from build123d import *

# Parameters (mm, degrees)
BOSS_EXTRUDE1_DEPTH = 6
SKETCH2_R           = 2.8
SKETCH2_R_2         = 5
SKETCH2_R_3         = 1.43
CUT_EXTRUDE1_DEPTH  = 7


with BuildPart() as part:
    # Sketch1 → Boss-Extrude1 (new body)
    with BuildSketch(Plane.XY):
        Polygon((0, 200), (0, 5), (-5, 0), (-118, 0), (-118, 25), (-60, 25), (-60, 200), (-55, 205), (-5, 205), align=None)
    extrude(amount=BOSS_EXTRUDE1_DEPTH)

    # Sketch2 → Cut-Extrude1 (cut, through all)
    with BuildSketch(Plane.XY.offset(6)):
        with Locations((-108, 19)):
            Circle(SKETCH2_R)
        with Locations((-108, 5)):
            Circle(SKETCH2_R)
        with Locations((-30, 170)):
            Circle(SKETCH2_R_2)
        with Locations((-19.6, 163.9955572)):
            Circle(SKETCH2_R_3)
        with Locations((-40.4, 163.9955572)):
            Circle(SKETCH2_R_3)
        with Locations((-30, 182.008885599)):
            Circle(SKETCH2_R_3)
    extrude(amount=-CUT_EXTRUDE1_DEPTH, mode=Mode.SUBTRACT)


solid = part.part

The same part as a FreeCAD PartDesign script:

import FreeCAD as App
import Part
import Sketcher

V = App.Vector
Q = App.Units.Quantity


def add_polygon(sketch, points):
    """Adds a closed chain of lines whose ends are joined by coincident constraints."""
    first, n = sketch.GeometryCount, len(points)
    for a, b in zip(points, points[1:] + points[:1]):
        sketch.addGeometry(Part.LineSegment(App.Vector(*a, 0), App.Vector(*b, 0)), False)
    for i in range(n):
        sketch.addConstraint(Sketcher.Constraint("Coincident", first + i, 2, first + (i + 1) % n, 1))

doc = App.newDocument("Part")
params = doc.addObject("Spreadsheet::Sheet", "Params")
for row, (alias, value) in enumerate([
    ("sketch1_width", "50 mm"),
    ("sketch1_width2", "58 mm"),
    ("sketch1_width3", "113 mm"),
    ("sketch1_height", "195 mm"),
    ("sketch1_height2", "175 mm"),
    ("pad1_length", "6 mm"),
    ("sketch2_diameter", "10 mm"),
    ("sketch2_diameter2", "5.6 mm"),
    ("sketch2_diameter3", "2.86 mm"),
], start=1):
    params.set(f"A{row}", alias)
    params.set(f"B{row}", "=" + value)
    params.setAlias(f"B{row}", alias)

body = doc.addObject("PartDesign::Body", "Body")

sketch1 = body.newObject("Sketcher::SketchObject", "Sketch")
sketch1.AttachmentSupport = (doc.getObject("XY_Plane"), [""])
sketch1.MapMode = "FlatFace"
add_polygon(sketch1, [(0, 5), (0, 200), (-5, 205), (-55, 205), (-60, 200), (-60, 25), (-118, 25), (-118, 0), (-5, 0)])
sketch1.addConstraint(Sketcher.Constraint("Vertical", 0))
sketch1.addConstraint(Sketcher.Constraint("Horizontal", 2))
sketch1.addConstraint(Sketcher.Constraint("Vertical", 4))
sketch1.addConstraint(Sketcher.Constraint("Horizontal", 5))
sketch1.addConstraint(Sketcher.Constraint("Vertical", 6))
sketch1.addConstraint(Sketcher.Constraint("Horizontal", 7))
sketch1.addConstraint(Sketcher.Constraint("PointOnObject", 0, 2, -2))
sketch1.addConstraint(Sketcher.Constraint("PointOnObject", 6, 2, -1))
sketch1.addConstraint(Sketcher.Constraint("Perpendicular", 1, 3))
sketch1.addConstraint(Sketcher.Constraint("Parallel", 3, 8))
sketch1.addConstraint(Sketcher.Constraint("Horizontal", 0, 2, 3, 2))
sketch1.addConstraint(Sketcher.Constraint("Vertical", 1, 2, 7, 2))
sketch1.addConstraint(Sketcher.Constraint("Equal", 1, 3))
sketch1.addConstraint(Sketcher.Constraint("DistanceX", 2, 2, 2, 1, Q("50 mm")))
sketch1.addConstraint(Sketcher.Constraint("DistanceX", 5, 2, 5, 1, Q("58 mm")))
sketch1.addConstraint(Sketcher.Constraint("DistanceX", 7, 1, 7, 2, Q("113 mm")))
sketch1.addConstraint(Sketcher.Constraint("DistanceY", 0, 1, 0, 2, Q("195 mm")))
sketch1.addConstraint(Sketcher.Constraint("DistanceY", 4, 2, 4, 1, Q("175 mm")))
sketch1.setExpression("Constraints[22]", "Params.sketch1_width")
sketch1.setExpression("Constraints[23]", "Params.sketch1_width2")
sketch1.setExpression("Constraints[24]", "Params.sketch1_width3")
sketch1.setExpression("Constraints[25]", "Params.sketch1_height")
sketch1.setExpression("Constraints[26]", "Params.sketch1_height2")
pad1 = body.newObject("PartDesign::Pad", "Pad")
pad1.Profile = sketch1
pad1.setExpression("Length", "Params.pad1_length")

sketch2 = body.newObject("Sketcher::SketchObject", "Sketch001")
sketch2.AttachmentSupport = (doc.getObject("XY_Plane"), [""])
sketch2.MapMode = "FlatFace"
sketch2.AttachmentOffset = App.Placement(V(0, 0, 6), App.Rotation())
sketch2.addGeometry(Part.Circle(V(-108, 19, 0), V(0, 0, 1), 2.8), False)
sketch2.addGeometry(Part.Circle(V(-108, 5, 0), V(0, 0, 1), 2.8), False)
sketch2.addGeometry(Part.Circle(V(-30, 170, 0), V(0, 0, 1), 5), False)
sketch2.addGeometry(Part.Circle(V(-19.6, 164, 0), V(0, 0, 1), 1.4), False)
sketch2.addGeometry(Part.Circle(V(-40.4, 164, 0), V(0, 0, 1), 1.4), False)
sketch2.addGeometry(Part.Circle(V(-30, 182, 0), V(0, 0, 1), 1.4), False)
sketch2.addConstraint(Sketcher.Constraint("Equal", 0, 1))
sketch2.addConstraint(Sketcher.Constraint("Equal", 3, 4))
sketch2.addConstraint(Sketcher.Constraint("Equal", 4, 5))
sketch2.addConstraint(Sketcher.Constraint("Horizontal", 3, 3, 4, 3))
sketch2.addConstraint(Sketcher.Constraint("Vertical", 0, 3, 1, 3))
sketch2.addConstraint(Sketcher.Constraint("Vertical", 2, 3, 5, 3))
sketch2.addConstraint(Sketcher.Constraint("Diameter", 2, Q("10 mm")))
sketch2.addConstraint(Sketcher.Constraint("Diameter", 0, Q("5.6 mm")))
sketch2.addConstraint(Sketcher.Constraint("Diameter", 3, Q("2.86 mm")))
sketch2.addConstraint(Sketcher.Constraint("DistanceX", 0, 3, -1, 1, Q("108 mm")))
sketch2.addConstraint(Sketcher.Constraint("DistanceY", -1, 1, 0, 3, Q("19 mm")))
sketch2.addConstraint(Sketcher.Constraint("DistanceY", -1, 1, 1, 3, Q("5 mm")))
sketch2.addConstraint(Sketcher.Constraint("DistanceX", 2, 3, -1, 1, Q("30 mm")))
sketch2.addConstraint(Sketcher.Constraint("DistanceY", -1, 1, 2, 3, Q("170 mm")))
sketch2.addConstraint(Sketcher.Constraint("DistanceX", 3, 3, -1, 1, Q("19.6 mm")))
sketch2.addConstraint(Sketcher.Constraint("DistanceX", 4, 3, -1, 1, Q("40.4 mm")))
sketch2.addConstraint(Sketcher.Constraint("DistanceY", 3, 3, 5, 3, Q("18.013328 mm")))
sketch2.addConstraint(Sketcher.Constraint("DistanceY", -1, 1, 3, 3, Q("163.995557 mm")))
sketch2.setExpression("Constraints[6]", "Params.sketch2_diameter")
sketch2.setExpression("Constraints[7]", "Params.sketch2_diameter2")
sketch2.setExpression("Constraints[8]", "Params.sketch2_diameter3")
pocket1 = body.newObject("PartDesign::Pocket", "Pocket")
pocket1.Profile = sketch2
pocket1.Type = "ThroughAll"

doc.recompute()
